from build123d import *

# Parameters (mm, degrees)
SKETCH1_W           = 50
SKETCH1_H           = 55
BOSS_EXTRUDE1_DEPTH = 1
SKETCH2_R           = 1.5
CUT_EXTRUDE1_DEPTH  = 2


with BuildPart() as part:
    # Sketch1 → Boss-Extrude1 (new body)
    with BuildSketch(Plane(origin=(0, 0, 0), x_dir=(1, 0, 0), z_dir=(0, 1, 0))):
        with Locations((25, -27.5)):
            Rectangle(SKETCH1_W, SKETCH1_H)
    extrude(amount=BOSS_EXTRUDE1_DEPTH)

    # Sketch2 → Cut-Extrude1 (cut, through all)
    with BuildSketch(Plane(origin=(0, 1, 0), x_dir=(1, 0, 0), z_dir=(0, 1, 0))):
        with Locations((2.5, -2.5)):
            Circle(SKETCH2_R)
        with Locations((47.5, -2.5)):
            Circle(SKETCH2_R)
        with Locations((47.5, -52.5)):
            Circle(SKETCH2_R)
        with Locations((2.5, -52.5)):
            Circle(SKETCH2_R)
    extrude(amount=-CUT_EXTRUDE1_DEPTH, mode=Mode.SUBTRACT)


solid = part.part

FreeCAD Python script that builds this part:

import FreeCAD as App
import Part
import Sketcher

V = App.Vector

doc = App.newDocument("Part")
body = doc.addObject("PartDesign::Body", "Body")

sketch1 = doc.addObject("Sketcher::SketchObject", "Sketch")
body.addObject(sketch1)
sketch1.AttachmentSupport = (doc.XZ_Plane, [""])
sketch1.MapMode = "FlatFace"
sketch1.addGeometry([
    Part.LineSegment(V(0, 0, 0), V(0, 55, 0)),
    Part.LineSegment(V(0, 55, 0), V(50, 55, 0)),
    Part.LineSegment(V(50, 55, 0), V(50, 0, 0)),
    Part.LineSegment(V(50, 0, 0), V(0, 0, 0)),
], False)
sketch1.addConstraint([
    Sketcher.Constraint("Coincident", 0, 2, 1, 1),
    Sketcher.Constraint("Coincident", 1, 2, 2, 1),
    Sketcher.Constraint("Coincident", 2, 2, 3, 1),
    Sketcher.Constraint("Coincident", 3, 2, 0, 1),
    Sketcher.Constraint("Vertical", 0),
    Sketcher.Constraint("Horizontal", 1),
    Sketcher.Constraint("Vertical", 2),
    Sketcher.Constraint("Horizontal", 3),
    Sketcher.Constraint("Coincident", 3, 2, -1, 1),
    Sketcher.Constraint("DistanceX", 1, 1, 1, 2, 50.0),
    Sketcher.Constraint("DistanceY", 0, 1, 0, 2, 55.0),
])
pad1 = doc.addObject("PartDesign::Pad", "Pad")
body.addObject(pad1)
pad1.Profile = sketch1
pad1.Length = 1
pad1.Reversed = True

sketch2 = doc.addObject("Sketcher::SketchObject", "Sketch001")
body.addObject(sketch2)
sketch2.AttachmentSupport = (doc.XZ_Plane, [""])
sketch2.MapMode = "FlatFace"
sketch2.AttachmentOffset = App.Placement(V(0, 0, -1), App.Rotation())
sketch2.addGeometry([
    Part.Circle(V(2.5, 2.5, 0), V(0, 0, 1), 1.5),
    Part.Circle(V(47.5, 2.5, 0), V(0, 0, 1), 1.5),
    Part.Circle(V(47.5, 52.5, 0), V(0, 0, 1), 1.5),
    Part.Circle(V(2.5, 52.5, 0), V(0, 0, 1), 1.5),
], False)
sketch2.addConstraint([
    Sketcher.Constraint("Equal", 0, 1),
    Sketcher.Constraint("Equal", 1, 2),
    Sketcher.Constraint("Equal", 2, 3),
    Sketcher.Constraint("Horizontal", 0, 3, 1, 3),
    Sketcher.Constraint("Horizontal", 2, 3, 3, 3),
    Sketcher.Constraint("Vertical", 1, 3, 2, 3),
    Sketcher.Constraint("Vertical", 0, 3, 3, 3),
    Sketcher.Constraint("Diameter", 0, 3.0),
    Sketcher.Constraint("DistanceX", 0, 3, 1, 3, 45.0),
    Sketcher.Constraint("DistanceY", 1, 3, 2, 3, 50.0),
    Sketcher.Constraint("DistanceX", -1, 1, 0, 3, 2.5),
    Sketcher.Constraint("DistanceY", -1, 1, 0, 3, 2.5),
])
pocket1 = doc.addObject("PartDesign::Pocket", "Pocket")
body.addObject(pocket1)
pocket1.Profile = sketch2
pocket1.Type = "ThroughAll"
pocket1.Reversed = True

doc.recompute()
